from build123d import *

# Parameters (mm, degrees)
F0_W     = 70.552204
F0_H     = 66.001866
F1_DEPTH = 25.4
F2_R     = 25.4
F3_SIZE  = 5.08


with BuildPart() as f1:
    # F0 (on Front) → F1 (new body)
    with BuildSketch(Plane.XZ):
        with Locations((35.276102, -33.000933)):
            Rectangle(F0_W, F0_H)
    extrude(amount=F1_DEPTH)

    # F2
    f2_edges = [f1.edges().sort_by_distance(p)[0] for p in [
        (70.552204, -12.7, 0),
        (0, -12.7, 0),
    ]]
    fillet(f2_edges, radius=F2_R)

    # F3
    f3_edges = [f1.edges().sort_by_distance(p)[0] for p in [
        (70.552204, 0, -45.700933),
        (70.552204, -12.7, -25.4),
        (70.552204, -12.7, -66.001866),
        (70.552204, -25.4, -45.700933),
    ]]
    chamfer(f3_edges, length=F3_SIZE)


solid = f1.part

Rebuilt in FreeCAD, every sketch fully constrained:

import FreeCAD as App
import Part
import Sketcher

V = App.Vector
Q = App.Units.Quantity


def edges_at(feature, points):
    """Names of the edges that pass closest to the given points."""
    edges = feature.Shape.Edges
    near = lambda p: min(range(len(edges)), key=lambda i: edges[i].distToShape(Part.Vertex(*p))[0])
    return sorted({f"Edge{near(p) + 1}" for p in points})


def add_polygon(sketch, points):
    """Adds a closed chain of lines whose ends are joined by coincident constraints."""
    first, n = sketch.GeometryCount, len(points)
    for a, b in zip(points, points[1:] + points[:1]):
        sketch.addGeometry(Part.LineSegment(App.Vector(*a, 0), App.Vector(*b, 0)), False)
    for i in range(n):
        sketch.addConstraint(Sketcher.Constraint("Coincident", first + i, 2, first + (i + 1) % n, 1))

doc = App.newDocument("Part")
body = doc.addObject("PartDesign::Body", "Body")

# Sketch on XZ plane
sketch1 = body.newObject("Sketcher::SketchObject", "Sketch")
sketch1.AttachmentSupport = (doc.getObject("XZ_Plane"), [""])
sketch1.MapMode = "FlatFace"
add_polygon(sketch1, [(0, 0), (0, -66), (71, -66), (71, 0)])  # lines 0-3
sketch1.addConstraint([
    Sketcher.Constraint("Vertical", 0),
    Sketcher.Constraint("Horizontal", 1),
    Sketcher.Constraint("Vertical", 2),
    Sketcher.Constraint("Horizontal", 3),
    Sketcher.Constraint("Coincident", 3, 2, -1, 1),
    Sketcher.Constraint("DistanceX", 1, 1, 1, 2, 70.552204),
    Sketcher.Constraint("DistanceY", 0, 2, 0, 1, 66.001866),
])
pad1 = body.newObject("PartDesign::Pad", "Pad")
pad1.Profile = sketch1
pad1.Length = Q("1 in")
doc.recompute()

fillet = body.newObject("PartDesign::Fillet", "Fillet")
fillet.Base = (pad1, edges_at(pad1, [(70.552, -12.7, 0), (0, -12.7, 0)]))
fillet.Radius = Q("1 in")
doc.recompute()

chamfer = body.newObject("PartDesign::Chamfer", "Chamfer")
chamfer.Base = (fillet, edges_at(fillet, [
    (70.552, 0, -45.701),
    (70.552, -12.7, -25.4),
    (70.552, -12.7, -66.002),
    (70.552, -25.4, -45.701),
]))
chamfer.Size = Q("0.2 in")

doc.recompute()
